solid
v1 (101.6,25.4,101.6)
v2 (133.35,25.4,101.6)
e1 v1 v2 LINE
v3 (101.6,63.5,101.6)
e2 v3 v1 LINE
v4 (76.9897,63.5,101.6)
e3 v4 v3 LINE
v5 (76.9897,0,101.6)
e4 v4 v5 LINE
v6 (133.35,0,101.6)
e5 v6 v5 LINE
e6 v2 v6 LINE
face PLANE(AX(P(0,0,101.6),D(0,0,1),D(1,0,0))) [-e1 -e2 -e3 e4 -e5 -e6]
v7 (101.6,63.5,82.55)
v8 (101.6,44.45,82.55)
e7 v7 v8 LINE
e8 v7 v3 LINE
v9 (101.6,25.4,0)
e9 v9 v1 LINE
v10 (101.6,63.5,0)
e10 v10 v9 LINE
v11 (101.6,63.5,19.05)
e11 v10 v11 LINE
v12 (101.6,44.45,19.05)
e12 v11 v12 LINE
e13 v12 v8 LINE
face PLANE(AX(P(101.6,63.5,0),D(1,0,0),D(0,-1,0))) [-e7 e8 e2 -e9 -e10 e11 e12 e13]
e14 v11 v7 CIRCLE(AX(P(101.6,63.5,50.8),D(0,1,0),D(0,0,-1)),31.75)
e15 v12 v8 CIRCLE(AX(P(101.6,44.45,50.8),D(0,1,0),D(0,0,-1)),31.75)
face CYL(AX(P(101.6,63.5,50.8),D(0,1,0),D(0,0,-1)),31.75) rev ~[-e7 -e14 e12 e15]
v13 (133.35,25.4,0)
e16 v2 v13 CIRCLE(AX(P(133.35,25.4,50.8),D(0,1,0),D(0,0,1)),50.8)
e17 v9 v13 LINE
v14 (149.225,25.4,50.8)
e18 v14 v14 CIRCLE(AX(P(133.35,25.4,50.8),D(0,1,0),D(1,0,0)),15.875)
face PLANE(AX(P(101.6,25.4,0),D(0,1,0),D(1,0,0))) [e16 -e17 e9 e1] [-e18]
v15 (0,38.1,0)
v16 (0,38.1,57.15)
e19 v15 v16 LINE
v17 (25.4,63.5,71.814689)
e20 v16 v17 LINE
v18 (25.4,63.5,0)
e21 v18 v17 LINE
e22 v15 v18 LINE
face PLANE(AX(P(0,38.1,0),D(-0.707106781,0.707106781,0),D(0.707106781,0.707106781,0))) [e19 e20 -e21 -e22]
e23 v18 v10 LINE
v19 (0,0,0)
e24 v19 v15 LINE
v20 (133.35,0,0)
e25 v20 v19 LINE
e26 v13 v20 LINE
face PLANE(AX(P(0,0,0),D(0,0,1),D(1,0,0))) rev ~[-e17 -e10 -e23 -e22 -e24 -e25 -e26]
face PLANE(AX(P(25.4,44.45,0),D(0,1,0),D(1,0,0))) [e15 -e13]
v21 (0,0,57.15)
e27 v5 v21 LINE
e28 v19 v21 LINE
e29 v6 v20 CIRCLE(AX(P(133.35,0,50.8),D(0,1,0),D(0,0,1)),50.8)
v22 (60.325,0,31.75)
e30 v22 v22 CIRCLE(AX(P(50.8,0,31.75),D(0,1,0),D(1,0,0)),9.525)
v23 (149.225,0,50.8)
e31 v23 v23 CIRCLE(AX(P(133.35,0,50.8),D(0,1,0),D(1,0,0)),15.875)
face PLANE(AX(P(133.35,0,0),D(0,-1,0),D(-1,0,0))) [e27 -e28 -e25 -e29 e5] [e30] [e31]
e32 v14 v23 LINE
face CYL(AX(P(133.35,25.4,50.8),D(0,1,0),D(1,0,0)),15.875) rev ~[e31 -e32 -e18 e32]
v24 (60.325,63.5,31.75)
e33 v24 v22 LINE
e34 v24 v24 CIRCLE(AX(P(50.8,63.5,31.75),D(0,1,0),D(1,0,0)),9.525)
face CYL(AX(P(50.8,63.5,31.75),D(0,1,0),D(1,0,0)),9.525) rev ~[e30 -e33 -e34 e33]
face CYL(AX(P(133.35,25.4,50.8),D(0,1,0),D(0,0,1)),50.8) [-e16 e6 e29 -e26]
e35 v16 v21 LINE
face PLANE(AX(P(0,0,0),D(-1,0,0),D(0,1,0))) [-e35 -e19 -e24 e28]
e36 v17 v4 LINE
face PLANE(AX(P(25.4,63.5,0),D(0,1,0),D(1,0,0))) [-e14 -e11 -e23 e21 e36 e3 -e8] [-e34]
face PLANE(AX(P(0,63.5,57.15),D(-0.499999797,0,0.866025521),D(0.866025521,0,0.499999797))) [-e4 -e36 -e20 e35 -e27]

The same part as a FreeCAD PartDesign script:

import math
import FreeCAD as App
import Part
import Sketcher
from FreeCAD import Vector
Q = App.Units.Quantity


def add_polygon(sketch, points):
    """Adds a closed chain of lines whose ends are joined by coincident constraints."""
    first, n = sketch.GeometryCount, len(points)
    for a, b in zip(points, points[1:] + points[:1]):
        sketch.addGeometry(Part.LineSegment(App.Vector(*a, 0), App.Vector(*b, 0)), False)
    for i in range(n):
        sketch.addConstraint(Sketcher.Constraint("Coincident", first + i, 2, first + (i + 1) % n, 1))

doc = App.newDocument("Part")
params = doc.addObject("Spreadsheet::Sheet", "Params")
for row, (alias, value) in enumerate([
    ("sketch1_width", "3 in"),
    ("sketch1_height", "1.5 in"),
    ("sketch1_width2", "5.25 in"),
    ("sketch1_width3", "1.25 in"),
    ("pad1_length", "4 in"),
    ("sketch2_radius", "2 in"),
    ("pad2_length", "1 in"),
    ("sketch4_diameter", "0.75 in"),
    ("sketch5_diameter", "1.25 in"),
    ("sketch6_radius", "1.25 in"),
    ("pocket4_length", "0.75 in"),
], start=1):
    params.set(f"A{row}", alias)
    params.set(f"B{row}", "=" + value)
    params.setAlias(f"B{row}", alias)

body = doc.addObject("PartDesign::Body", "Body")

# Sketch on XY plane
sketch1 = body.newObject("Sketcher::SketchObject", "Sketch")
sketch1.AttachmentSupport = (doc.getObject("XY_Plane"), [""])
sketch1.MapMode = "FlatFace"
add_polygon(sketch1, [(0, 38), (0, 0), (133, 0), (133, 25), (102, 25), (102, 64), (25, 64)])  # lines 0-6
sketch1.addConstraint(Sketcher.Constraint("Vertical", 0))
sketch1.addConstraint(Sketcher.Constraint("Horizontal", 1))
sketch1.addConstraint(Sketcher.Constraint("Vertical", 2))
sketch1.addConstraint(Sketcher.Constraint("Horizontal", 3))
sketch1.addConstraint(Sketcher.Constraint("Vertical", 4))
sketch1.addConstraint(Sketcher.Constraint("Horizontal", 5))
sketch1.addConstraint(Sketcher.Constraint("Coincident", 0, 2, -1, 1))
sketch1.addConstraint(Sketcher.Constraint("Equal", 0, 4))
sketch1.addConstraint(Sketcher.Constraint("DistanceX", 5, 2, 5, 1, Q("3 in")))
sketch1.addConstraint(Sketcher.Constraint("DistanceY", 0, 2, 0, 1, Q("1.5 in")))
sketch1.addConstraint(Sketcher.Constraint("DistanceX", 1, 1, 1, 2, Q("5.25 in")))
sketch1.addConstraint(Sketcher.Constraint("DistanceX", 3, 2, 3, 1, Q("1.25 in")))
sketch1.addConstraint(Sketcher.Constraint("DistanceY", -1, 1, 4, 2, Q("2.5 in")))
sketch1.setExpression("Constraints[15]", "Params.sketch1_width")
sketch1.setExpression("Constraints[16]", "Params.sketch1_height")
sketch1.setExpression("Constraints[17]", "Params.sketch1_width2")
sketch1.setExpression("Constraints[18]", "Params.sketch1_width3")
pad1 = body.newObject("PartDesign::Pad", "Pad")
pad1.Profile = sketch1
pad1.setExpression("Length", "Params.pad1_length")

# Sketch on XZ plane
sketch2 = body.newObject("Sketcher::SketchObject", "Sketch001")
sketch2.AttachmentSupport = (doc.getObject("XZ_Plane"), [""])
sketch2.MapMode = "FlatFace"
sketch2.AttachmentOffset = App.Placement(Vector(0, 0, -1 * 25.4), App.Rotation())
sketch2.addGeometry(Part.LineSegment(Vector(133, 0, 0), Vector(133, 102, 0)), False)
sketch2.addGeometry(Part.ArcOfCircle(Part.Circle(Vector(133, 51, 0), Vector(0, 0, 1), 51), math.radians(-90), math.radians(90)), False)
sketch2.addConstraint(Sketcher.Constraint("Coincident", 0, 1, 1, 1))
sketch2.addConstraint(Sketcher.Constraint("Coincident", 1, 2, 0, 2))
sketch2.addConstraint(Sketcher.Constraint("Vertical", 0))
sketch2.addConstraint(Sketcher.Constraint("PointOnObject", 0, 1, -1))
sketch2.addConstraint(Sketcher.Constraint("Vertical", 1, 3, 0, 1))
sketch2.addConstraint(Sketcher.Constraint("Radius", 1, Q("2 in")))
sketch2.addConstraint(Sketcher.Constraint("DistanceX", -1, 1, 1, 3, Q("5.25 in")))
sketch2.setExpression("Constraints[5]", "Params.sketch2_radius")
pad2 = body.newObject("PartDesign::Pad", "Pad001")
pad2.Profile = sketch2
pad2.setExpression("Length", "Params.pad2_length")

# Sketch on XZ plane
sketch3 = body.newObject("Sketcher::SketchObject", "Sketch002")
sketch3.AttachmentSupport = (doc.getObject("XZ_Plane"), [""])
sketch3.MapMode = "FlatFace"
sketch3.AttachmentOffset = App.Placement(Vector(0, 0, -2.5 * 25.4), App.Rotation())
add_polygon(sketch3, [(0, 57), (0, 102), (77, 102)])  # lines 0-2
sketch3.addConstraint(Sketcher.Constraint("Vertical", 0))
sketch3.addConstraint(Sketcher.Constraint("Horizontal", 1))
sketch3.addConstraint(Sketcher.Constraint("PointOnObject", 0, 2, -2))
sketch3.addConstraint(Sketcher.Constraint("DistanceY", -1, 1, 2, 2, Q("2.25 in")))
sketch3.addConstraint(Sketcher.Constraint("DistanceY", -1, 1, 0, 2, Q("4 in")))
sketch3.addConstraint(Sketcher.Constraint("Angle", 2, Q("-150 deg")))
pocket1 = body.newObject("PartDesign::Pocket", "Pocket")
pocket1.Profile = sketch3
pocket1.Type = "ThroughAll"
pocket1.Reversed = True

# Sketch on XZ plane
sketch4 = body.newObject("Sketcher::SketchObject", "Sketch003")
sketch4.AttachmentSupport = (doc.getObject("XZ_Plane"), [""])
sketch4.MapMode = "FlatFace"
sketch4.AttachmentOffset = App.Placement(Vector(0, 0, -2.5 * 25.4), App.Rotation())
sketch4.addGeometry(Part.Circle(Vector(51, 32, 0), Vector(0, 0, 1), 10), False)
sketch4.addConstraint(Sketcher.Constraint("Diameter", 0, Q("0.75 in")))
sketch4.addConstraint(Sketcher.Constraint("DistanceX", -1, 1, 0, 3, Q("2 in")))
sketch4.addConstraint(Sketcher.Constraint("DistanceY", -1, 1, 0, 3, Q("1.25 in")))
sketch4.setExpression("Constraints[0]", "Params.sketch4_diameter")
pocket2 = body.newObject("PartDesign::Pocket", "Pocket001")
pocket2.Profile = sketch4
pocket2.Type = "ThroughAll"
pocket2.Reversed = True

# Sketch on XZ plane
sketch5 = body.newObject("Sketcher::SketchObject", "Sketch004")
sketch5.AttachmentSupport = (doc.getObject("XZ_Plane"), [""])
sketch5.MapMode = "FlatFace"
sketch5.AttachmentOffset = App.Placement(Vector(0, 0, -1 * 25.4), App.Rotation())
sketch5.addGeometry(Part.Circle(Vector(133, 51, 0), Vector(0, 0, 1), 16), False)
sketch5.addConstraint(Sketcher.Constraint("Diameter", 0, Q("1.25 in")))
sketch5.addConstraint(Sketcher.Constraint("DistanceY", -1, 1, 0, 3, Q("2 in")))
sketch5.addConstraint(Sketcher.Constraint("DistanceX", -1, 1, 0, 3, Q("5.25 in")))
sketch5.setExpression("Constraints[0]", "Params.sketch5_diameter")
pocket3 = body.newObject("PartDesign::Pocket", "Pocket002")
pocket3.Profile = sketch5
pocket3.Type = "ThroughAll"
pocket3.Reversed = True

# Sketch on XZ plane
sketch6 = body.newObject("Sketcher::SketchObject", "Sketch005")
sketch6.AttachmentSupport = (doc.getObject("XZ_Plane"), [""])
sketch6.MapMode = "FlatFace"
sketch6.AttachmentOffset = App.Placement(Vector(0, 0, -2.5 * 25.4), App.Rotation())
sketch6.addGeometry(Part.LineSegment(Vector(102, 83, 0), Vector(102, 19, 0)), False)
sketch6.addGeometry(Part.ArcOfCircle(Part.Circle(Vector(102, 51, 0), Vector(0, 0, 1), 32), math.radians(90), math.radians(270)), False)
sketch6.addConstraint(Sketcher.Constraint("Coincident", 0, 1, 1, 1))
sketch6.addConstraint(Sketcher.Constraint("Coincident", 1, 2, 0, 2))
sketch6.addConstraint(Sketcher.Constraint("Vertical", 0))
sketch6.addConstraint(Sketcher.Constraint("Vertical", 1, 3, 0, 1))
sketch6.addConstraint(Sketcher.Constraint("Radius", 1, Q("1.25 in")))
sketch6.addConstraint(Sketcher.Constraint("DistanceX", -1, 1, 1, 3, Q("4 in")))
sketch6.addConstraint(Sketcher.Constraint("DistanceY", -1, 1, 1, 3, Q("2 in")))
sketch6.setExpression("Constraints[4]", "Params.sketch6_radius")
pocket4 = body.newObject("PartDesign::Pocket", "Pocket003")
pocket4.Profile = sketch6
pocket4.setExpression("Length", "Params.pocket4_length")
pocket4.Reversed = True

doc.recompute()
